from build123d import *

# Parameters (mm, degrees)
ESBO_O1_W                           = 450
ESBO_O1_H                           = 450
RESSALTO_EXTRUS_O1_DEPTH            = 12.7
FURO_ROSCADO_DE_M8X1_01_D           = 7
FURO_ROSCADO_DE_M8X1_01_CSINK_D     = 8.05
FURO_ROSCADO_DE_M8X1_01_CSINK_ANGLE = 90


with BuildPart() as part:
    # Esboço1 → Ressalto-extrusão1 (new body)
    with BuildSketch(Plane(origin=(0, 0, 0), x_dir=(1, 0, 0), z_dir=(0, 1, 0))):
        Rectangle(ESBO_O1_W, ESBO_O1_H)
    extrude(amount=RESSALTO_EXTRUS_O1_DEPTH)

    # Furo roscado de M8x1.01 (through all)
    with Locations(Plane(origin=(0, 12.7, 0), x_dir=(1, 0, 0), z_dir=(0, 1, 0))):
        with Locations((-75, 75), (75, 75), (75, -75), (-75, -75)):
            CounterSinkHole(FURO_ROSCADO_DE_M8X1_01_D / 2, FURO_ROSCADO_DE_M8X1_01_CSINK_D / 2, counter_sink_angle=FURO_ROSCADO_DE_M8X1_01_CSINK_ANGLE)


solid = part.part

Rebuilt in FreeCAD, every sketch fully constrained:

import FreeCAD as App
import Part
import Sketcher

V = App.Vector

doc = App.newDocument("Part")
body = doc.addObject("PartDesign::Body", "Body")

# Sketch on XZ plane
sketch1 = body.newObject("Sketcher::SketchObject", "Sketch")
sketch1.AttachmentSupport = (doc.getObject("XZ_Plane"), [""])
sketch1.MapMode = "FlatFace"
sketch1.addGeometry(Part.LineSegment(V(-225, -225, 0), V(-225, 225, 0)), False)
sketch1.addGeometry(Part.LineSegment(V(-225, 225, 0), V(225, 225, 0)), False)
sketch1.addGeometry(Part.LineSegment(V(225, 225, 0), V(225, -225, 0)), False)
sketch1.addGeometry(Part.LineSegment(V(225, -225, 0), V(-225, -225, 0)), False)
sketch1.addConstraint(Sketcher.Constraint("Coincident", 0, 2, 1, 1))
sketch1.addConstraint(Sketcher.Constraint("Coincident", 1, 2, 2, 1))
sketch1.addConstraint(Sketcher.Constraint("Coincident", 2, 2, 3, 1))
sketch1.addConstraint(Sketcher.Constraint("Coincident", 3, 2, 0, 1))
sketch1.addConstraint(Sketcher.Constraint("Vertical", 0))
sketch1.addConstraint(Sketcher.Constraint("Horizontal", 1))
sketch1.addConstraint(Sketcher.Constraint("Vertical", 2))
sketch1.addConstraint(Sketcher.Constraint("Horizontal", 3))
sketch1.addConstraint(Sketcher.Constraint("Symmetric", 0, 2, 2, 2, -1, 1))
sketch1.addConstraint(Sketcher.Constraint("Equal", 3, 0))
sketch1.addConstraint(Sketcher.Constraint("DistanceX", 1, 1, 1, 2, 450.0))
pad1 = body.newObject("PartDesign::Pad", "Pad")
pad1.Profile = sketch1
pad1.Length = 12.7
pad1.Reversed = True

# Sketch on XZ plane
sketch2 = body.newObject("Sketcher::SketchObject", "Sketch001")
sketch2.AttachmentSupport = (doc.getObject("XZ_Plane"), [""])
sketch2.MapMode = "FlatFace"
sketch2.AttachmentOffset = App.Placement(V(0, 0, -12.7), App.Rotation())
sketch2.addGeometry(Part.Circle(V(-75, -75, 0), V(0, 0, 1), 3.5), False)
sketch2.addGeometry(Part.Circle(V(75, -75, 0), V(0, 0, 1), 3.5), False)
sketch2.addGeometry(Part.Circle(V(75, 75, 0), V(0, 0, 1), 3.5), False)
sketch2.addGeometry(Part.Circle(V(-75, 75, 0), V(0, 0, 1), 3.5), False)
sketch2.addConstraint(Sketcher.Constraint("Equal", 0, 1))
sketch2.addConstraint(Sketcher.Constraint("Equal", 1, 2))
sketch2.addConstraint(Sketcher.Constraint("Equal", 2, 3))
sketch2.addConstraint(Sketcher.Constraint("Symmetric", 0, 3, 2, 3, -1, 1))
sketch2.addConstraint(Sketcher.Constraint("Symmetric", 1, 3, 3, 3, -1, 1))
sketch2.addConstraint(Sketcher.Constraint("Symmetric", 0, 3, 1, 3, -2))
sketch2.addConstraint(Sketcher.Constraint("Diameter", 0, 7.0))
sketch2.addConstraint(Sketcher.Constraint("DistanceX", 0, 3, -1, 1, 75.0))
sketch2.addConstraint(Sketcher.Constraint("DistanceY", 0, 3, -1, 1, 75.0))
doc.recompute()
hole = body.newObject("PartDesign::Hole", "Hole")
hole.Profile = sketch2
hole.ThreadType = "None"
hole.Diameter = 7
hole.DepthType = "ThroughAll"
hole.HoleCutType = "Countersink"
hole.HoleCutDiameter = 8.05
hole.HoleCutCountersinkAngle = 90
hole.Reversed = True

doc.recompute()
